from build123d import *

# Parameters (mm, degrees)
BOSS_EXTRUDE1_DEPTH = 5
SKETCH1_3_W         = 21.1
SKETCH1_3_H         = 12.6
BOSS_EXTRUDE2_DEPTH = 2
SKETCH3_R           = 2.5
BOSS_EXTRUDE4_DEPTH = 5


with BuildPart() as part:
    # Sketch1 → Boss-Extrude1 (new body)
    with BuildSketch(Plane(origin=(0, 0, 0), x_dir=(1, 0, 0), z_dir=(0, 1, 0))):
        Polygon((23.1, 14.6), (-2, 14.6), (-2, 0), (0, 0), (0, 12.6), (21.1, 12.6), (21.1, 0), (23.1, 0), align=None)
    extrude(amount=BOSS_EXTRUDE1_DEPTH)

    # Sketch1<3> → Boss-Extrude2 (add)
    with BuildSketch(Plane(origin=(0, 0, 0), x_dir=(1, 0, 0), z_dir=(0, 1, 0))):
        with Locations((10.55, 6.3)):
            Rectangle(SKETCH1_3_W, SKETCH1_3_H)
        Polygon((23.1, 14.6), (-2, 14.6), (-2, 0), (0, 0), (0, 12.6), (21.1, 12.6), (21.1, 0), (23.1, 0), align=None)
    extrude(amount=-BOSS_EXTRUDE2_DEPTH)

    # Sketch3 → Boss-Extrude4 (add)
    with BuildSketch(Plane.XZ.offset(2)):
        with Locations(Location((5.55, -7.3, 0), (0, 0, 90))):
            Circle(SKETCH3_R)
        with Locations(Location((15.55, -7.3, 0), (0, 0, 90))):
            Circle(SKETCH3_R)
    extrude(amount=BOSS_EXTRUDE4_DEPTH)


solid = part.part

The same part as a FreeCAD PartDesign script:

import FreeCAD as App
import Part
import Sketcher


def add_polygon(sketch, points):
    """Adds a closed chain of lines whose ends are joined by coincident constraints."""
    first, n = sketch.GeometryCount, len(points)
    for a, b in zip(points, points[1:] + points[:1]):
        sketch.addGeometry(Part.LineSegment(App.Vector(*a, 0), App.Vector(*b, 0)), False)
    for i in range(n):
        sketch.addConstraint(Sketcher.Constraint("Coincident", first + i, 2, first + (i + 1) % n, 1))

doc = App.newDocument("Part")
body = doc.addObject("PartDesign::Body", "Body")

# Sketch on XZ plane
sketch1 = body.newObject("Sketcher::SketchObject", "Sketch")
sketch1.AttachmentSupport = (doc.getObject("XZ_Plane"), [""])
sketch1.MapMode = "FlatFace"
add_polygon(sketch1, [(23.1, -14.6), (-2, -14.6), (-2, 0), (0, 0), (0, -12.6), (21.1, -12.6), (21.1, 0), (23.1, 0)])  # lines 0-7
sketch1.addConstraint([
    Sketcher.Constraint("Horizontal", 0),
    Sketcher.Constraint("Vertical", 1),
    Sketcher.Constraint("Horizontal", 2),
    Sketcher.Constraint("Vertical", 3),
    Sketcher.Constraint("Horizontal", 4),
    Sketcher.Constraint("Vertical", 5),
    Sketcher.Constraint("Horizontal", 6),
    Sketcher.Constraint("Vertical", 7),
    Sketcher.Constraint("Coincident", 2, 2, -1, 1),
    Sketcher.Constraint("PointOnObject", 5, 2, -1),
    Sketcher.Constraint("Equal", 2, 6),
    Sketcher.Constraint("DistanceX", 2, 1, 2, 2, 2.0),
    Sketcher.Constraint("DistanceX", 0, 2, 0, 1, 25.1),
    Sketcher.Constraint("DistanceY", 1, 1, 1, 2, 14.6),
    Sketcher.Constraint("DistanceY", 3, 2, 3, 1, 12.6),
])
pad1 = body.newObject("PartDesign::Pad", "Pad")
pad1.Profile = sketch1
pad1.Length = 5
pad1.Reversed = True

# Sketch on XZ plane
sketch2 = body.newObject("Sketcher::SketchObject", "Sketch001")
sketch2.AttachmentSupport = (doc.getObject("XZ_Plane"), [""])
sketch2.MapMode = "FlatFace"
add_polygon(sketch2, [(23, 0), (23, -15), (-2, -15), (-2, 0)])  # lines 0-3
sketch2.addConstraint([
    Sketcher.Constraint("Vertical", 0),
    Sketcher.Constraint("Horizontal", 1),
    Sketcher.Constraint("Vertical", 2),
    Sketcher.Constraint("Horizontal", 3),
    Sketcher.Constraint("PointOnObject", 2, 2, -1),
    Sketcher.Constraint("DistanceX", 1, 2, 1, 1, 25.1),
    Sketcher.Constraint("DistanceY", 0, 2, 0, 1, 14.6),
    Sketcher.Constraint("DistanceX", 1, 2, -1, 1, 2.0),
])
pad2 = body.newObject("PartDesign::Pad", "Pad001")
pad2.Profile = sketch2
pad2.Length = 2

# Sketch on XZ plane
sketch3 = body.newObject("Sketcher::SketchObject", "Sketch002")
sketch3.AttachmentSupport = (doc.getObject("XZ_Plane"), [""])
sketch3.MapMode = "FlatFace"
sketch3.AttachmentOffset = App.Placement(App.Vector(0, 0, 2), App.Rotation())
sketch3.addGeometry([
    Part.Circle(App.Vector(5.5, -7.3, 0), App.Vector(0, 0, 1), 2.5),
    Part.Circle(App.Vector(15.6, -7.3, 0), App.Vector(0, 0, 1), 2.5),
], False)
sketch3.addConstraint([
    Sketcher.Constraint("Equal", 0, 1),
    Sketcher.Constraint("Horizontal", 0, 3, 1, 3),
    Sketcher.Constraint("Diameter", 0, 5.0),
    Sketcher.Constraint("DistanceX", 0, 3, 1, 3, 10.0),
    Sketcher.Constraint("DistanceY", 0, 3, -1, 1, 7.3),
    Sketcher.Constraint("DistanceX", -1, 1, 0, 3, 5.55),
])
pad3 = body.newObject("PartDesign::Pad", "Pad002")
pad3.Profile = sketch3
pad3.Length = 5

doc.recompute()
